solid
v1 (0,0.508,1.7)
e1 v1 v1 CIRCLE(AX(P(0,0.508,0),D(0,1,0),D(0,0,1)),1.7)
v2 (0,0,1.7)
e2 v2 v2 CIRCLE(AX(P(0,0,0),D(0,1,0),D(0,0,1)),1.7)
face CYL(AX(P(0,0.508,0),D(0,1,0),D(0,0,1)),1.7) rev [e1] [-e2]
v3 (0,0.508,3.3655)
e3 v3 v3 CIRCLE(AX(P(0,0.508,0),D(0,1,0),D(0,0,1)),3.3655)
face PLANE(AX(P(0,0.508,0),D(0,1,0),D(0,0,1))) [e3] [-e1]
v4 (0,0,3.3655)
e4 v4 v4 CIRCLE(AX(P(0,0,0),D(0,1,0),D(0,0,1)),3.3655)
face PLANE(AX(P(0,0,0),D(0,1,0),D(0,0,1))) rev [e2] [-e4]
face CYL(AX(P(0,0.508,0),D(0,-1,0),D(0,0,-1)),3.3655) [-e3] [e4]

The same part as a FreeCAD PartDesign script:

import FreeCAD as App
import Part
import Sketcher
from FreeCAD import Vector
Q = App.Units.Quantity

doc = App.newDocument("Part")
body = doc.addObject("PartDesign::Body", "Body")

# Sketch on XZ plane
sketch1 = body.newObject("Sketcher::SketchObject", "Sketch")
sketch1.AttachmentSupport = (doc.getObject("XZ_Plane"), [""])
sketch1.MapMode = "FlatFace"
sketch1.addGeometry(Part.Circle(Vector(0, 0, 0), Vector(0, 0, 1), 3.4), False)
sketch1.addConstraint([
    Sketcher.Constraint("Coincident", 0, 3, -1, 1),
    Sketcher.Constraint("Diameter", 0, Q("0.265 in")),
])
pad1 = body.newObject("PartDesign::Pad", "Pad")
pad1.Profile = sketch1
pad1.Length = Q("0.02 in")
pad1.Reversed = True

# Sketch on XZ plane
sketch2 = body.newObject("Sketcher::SketchObject", "Sketch001")
sketch2.AttachmentSupport = (doc.getObject("XZ_Plane"), [""])
sketch2.MapMode = "FlatFace"
sketch2.AttachmentOffset = App.Placement(Vector(0, 0, -0.02 * 25.4), App.Rotation())
sketch2.addGeometry(Part.Circle(Vector(0, 0, 0), Vector(0, 0, 1), 1.7), False)
sketch2.addConstraint([
    Sketcher.Constraint("Coincident", 0, 3, -1, 1),
    Sketcher.Constraint("Diameter", 0, 3.4),
])
doc.recompute()
hole = body.newObject("PartDesign::Hole", "Hole")
hole.Profile = sketch2
hole.ThreadType = "None"
hole.Diameter = 3.4
hole.DepthType = "ThroughAll"
hole.Reversed = True

doc.recompute()
